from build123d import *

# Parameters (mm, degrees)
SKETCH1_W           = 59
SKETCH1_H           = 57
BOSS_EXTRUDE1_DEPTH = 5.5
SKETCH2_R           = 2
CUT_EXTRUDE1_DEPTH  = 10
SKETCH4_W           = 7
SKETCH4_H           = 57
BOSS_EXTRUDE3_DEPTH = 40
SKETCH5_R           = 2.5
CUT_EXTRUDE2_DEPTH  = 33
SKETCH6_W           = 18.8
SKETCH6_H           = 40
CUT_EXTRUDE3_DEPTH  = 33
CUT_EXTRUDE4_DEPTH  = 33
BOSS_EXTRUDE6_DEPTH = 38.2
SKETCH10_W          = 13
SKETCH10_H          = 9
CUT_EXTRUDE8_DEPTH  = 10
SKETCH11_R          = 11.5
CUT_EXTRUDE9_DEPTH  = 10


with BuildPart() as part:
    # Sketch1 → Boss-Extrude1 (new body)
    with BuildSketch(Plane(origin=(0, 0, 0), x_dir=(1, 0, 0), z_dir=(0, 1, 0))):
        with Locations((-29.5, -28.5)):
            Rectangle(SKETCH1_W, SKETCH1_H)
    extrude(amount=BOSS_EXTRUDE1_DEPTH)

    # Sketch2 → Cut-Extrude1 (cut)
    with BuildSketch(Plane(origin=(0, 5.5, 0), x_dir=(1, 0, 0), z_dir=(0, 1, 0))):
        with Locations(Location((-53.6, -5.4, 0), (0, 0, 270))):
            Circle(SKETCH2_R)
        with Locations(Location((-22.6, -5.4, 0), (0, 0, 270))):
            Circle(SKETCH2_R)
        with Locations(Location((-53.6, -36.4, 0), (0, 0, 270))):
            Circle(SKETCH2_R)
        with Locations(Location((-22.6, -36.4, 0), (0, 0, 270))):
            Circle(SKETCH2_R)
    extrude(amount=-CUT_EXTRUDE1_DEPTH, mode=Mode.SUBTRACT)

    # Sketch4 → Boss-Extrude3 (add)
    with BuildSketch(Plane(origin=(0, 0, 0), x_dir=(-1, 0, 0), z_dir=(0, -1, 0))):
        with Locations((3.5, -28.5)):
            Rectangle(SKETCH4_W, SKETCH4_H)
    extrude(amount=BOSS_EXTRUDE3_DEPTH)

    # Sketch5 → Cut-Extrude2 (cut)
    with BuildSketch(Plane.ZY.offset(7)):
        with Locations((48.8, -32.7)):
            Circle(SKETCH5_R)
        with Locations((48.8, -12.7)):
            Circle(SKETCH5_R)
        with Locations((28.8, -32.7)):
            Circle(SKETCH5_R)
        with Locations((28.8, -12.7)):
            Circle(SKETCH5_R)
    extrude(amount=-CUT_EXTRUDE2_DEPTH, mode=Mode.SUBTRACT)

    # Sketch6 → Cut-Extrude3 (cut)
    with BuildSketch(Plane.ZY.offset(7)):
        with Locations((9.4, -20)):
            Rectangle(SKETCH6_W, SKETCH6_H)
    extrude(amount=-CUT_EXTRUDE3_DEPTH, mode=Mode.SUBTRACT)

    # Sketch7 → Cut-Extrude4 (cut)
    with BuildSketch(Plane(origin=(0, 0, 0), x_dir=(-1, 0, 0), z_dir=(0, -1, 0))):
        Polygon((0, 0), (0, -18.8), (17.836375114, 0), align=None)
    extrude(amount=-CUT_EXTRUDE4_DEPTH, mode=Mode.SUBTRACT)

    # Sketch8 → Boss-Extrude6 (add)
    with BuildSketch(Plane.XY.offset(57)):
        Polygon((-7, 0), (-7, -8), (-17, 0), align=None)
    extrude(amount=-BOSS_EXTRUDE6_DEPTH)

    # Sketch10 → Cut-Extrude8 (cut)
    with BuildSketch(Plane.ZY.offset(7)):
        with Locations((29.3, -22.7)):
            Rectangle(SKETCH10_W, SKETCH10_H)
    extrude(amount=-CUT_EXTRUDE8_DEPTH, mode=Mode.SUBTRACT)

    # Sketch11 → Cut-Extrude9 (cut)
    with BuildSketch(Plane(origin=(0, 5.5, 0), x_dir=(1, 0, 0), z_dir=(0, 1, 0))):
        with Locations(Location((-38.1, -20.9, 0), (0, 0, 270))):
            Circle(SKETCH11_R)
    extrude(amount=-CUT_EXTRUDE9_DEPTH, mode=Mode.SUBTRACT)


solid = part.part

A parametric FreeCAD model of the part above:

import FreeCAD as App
import Part
import Sketcher
from FreeCAD import Vector
Q = App.Units.Quantity

doc = App.newDocument("Part")
body = doc.addObject("PartDesign::Body", "Body")

# Sketch on XZ plane
sketch1 = doc.addObject("Sketcher::SketchObject", "Sketch")
body.addObject(sketch1)
sketch1.AttachmentSupport = (doc.XZ_Plane, [""])
sketch1.MapMode = "FlatFace"
sketch1.addGeometry(Part.LineSegment(Vector(-59, 0, 0), Vector(-59, 57, 0)), False)
sketch1.addGeometry(Part.LineSegment(Vector(-59, 57, 0), Vector(0, 57, 0)), False)
sketch1.addGeometry(Part.LineSegment(Vector(0, 57, 0), Vector(0, 0, 0)), False)
sketch1.addGeometry(Part.LineSegment(Vector(0, 0, 0), Vector(-59, 0, 0)), False)
sketch1.addConstraint(Sketcher.Constraint("Coincident", 0, 2, 1, 1))
sketch1.addConstraint(Sketcher.Constraint("Coincident", 1, 2, 2, 1))
sketch1.addConstraint(Sketcher.Constraint("Coincident", 2, 2, 3, 1))
sketch1.addConstraint(Sketcher.Constraint("Coincident", 3, 2, 0, 1))
sketch1.addConstraint(Sketcher.Constraint("Vertical", 0))
sketch1.addConstraint(Sketcher.Constraint("Horizontal", 1))
sketch1.addConstraint(Sketcher.Constraint("Vertical", 2))
sketch1.addConstraint(Sketcher.Constraint("Horizontal", 3))
sketch1.addConstraint(Sketcher.Constraint("Coincident", 2, 2, -1, 1))
sketch1.addConstraint(Sketcher.Constraint("DistanceX", 1, 1, 1, 2, Q("59 mm")))
sketch1.addConstraint(Sketcher.Constraint("DistanceY", 0, 1, 0, 2, Q("57 mm")))
pad1 = doc.addObject("PartDesign::Pad", "Pad")
body.addObject(pad1)
pad1.Profile = sketch1
pad1.Length = 5.5
pad1.Reversed = True

# Sketch on XZ plane
sketch2 = doc.addObject("Sketcher::SketchObject", "Sketch001")
body.addObject(sketch2)
sketch2.AttachmentSupport = (doc.XZ_Plane, [""])
sketch2.MapMode = "FlatFace"
sketch2.AttachmentOffset = App.Placement(Vector(0, 0, -5.5), App.Rotation())
sketch2.addGeometry(Part.Circle(Vector(-53.6, 5.4, 0), Vector(0, 0, 1), 2), False)
sketch2.addGeometry(Part.Circle(Vector(-22.6, 5.4, 0), Vector(0, 0, 1), 2), False)
sketch2.addGeometry(Part.Circle(Vector(-53.6, 36.4, 0), Vector(0, 0, 1), 2), False)
sketch2.addGeometry(Part.Circle(Vector(-22.6, 36.4, 0), Vector(0, 0, 1), 2), False)
sketch2.addConstraint(Sketcher.Constraint("Equal", 0, 1))
sketch2.addConstraint(Sketcher.Constraint("Equal", 1, 2))
sketch2.addConstraint(Sketcher.Constraint("Equal", 2, 3))
sketch2.addConstraint(Sketcher.Constraint("Horizontal", 0, 3, 1, 3))
sketch2.addConstraint(Sketcher.Constraint("Horizontal", 2, 3, 3, 3))
sketch2.addConstraint(Sketcher.Constraint("Vertical", 0, 3, 2, 3))
sketch2.addConstraint(Sketcher.Constraint("Vertical", 1, 3, 3, 3))
sketch2.addConstraint(Sketcher.Constraint("Diameter", 0, Q("4 mm")))
sketch2.addConstraint(Sketcher.Constraint("DistanceX", 0, 3, 1, 3, Q("31 mm")))
sketch2.addConstraint(Sketcher.Constraint("DistanceY", 0, 3, 2, 3, Q("31 mm")))
sketch2.addConstraint(Sketcher.Constraint("DistanceX", 0, 3, -1, 1, Q("53.6 mm")))
sketch2.addConstraint(Sketcher.Constraint("DistanceY", -1, 1, 0, 3, Q("5.4 mm")))
pocket1 = doc.addObject("PartDesign::Pocket", "Pocket")
body.addObject(pocket1)
pocket1.Profile = sketch2
pocket1.Length = 10
pocket1.Reversed = True

# Sketch on XZ plane
sketch3 = doc.addObject("Sketcher::SketchObject", "Sketch002")
body.addObject(sketch3)
sketch3.AttachmentSupport = (doc.XZ_Plane, [""])
sketch3.MapMode = "FlatFace"
sketch3.addGeometry(Part.LineSegment(Vector(0, 0, 0), Vector(0, 57, 0)), False)
sketch3.addGeometry(Part.LineSegment(Vector(0, 57, 0), Vector(-7, 57, 0)), False)
sketch3.addGeometry(Part.LineSegment(Vector(-7, 57, 0), Vector(-7, 0, 0)), False)
sketch3.addGeometry(Part.LineSegment(Vector(-7, 0, 0), Vector(0, 0, 0)), False)
sketch3.addConstraint(Sketcher.Constraint("Coincident", 0, 2, 1, 1))
sketch3.addConstraint(Sketcher.Constraint("Coincident", 1, 2, 2, 1))
sketch3.addConstraint(Sketcher.Constraint("Coincident", 2, 2, 3, 1))
sketch3.addConstraint(Sketcher.Constraint("Coincident", 3, 2, 0, 1))
sketch3.addConstraint(Sketcher.Constraint("Vertical", 0))
sketch3.addConstraint(Sketcher.Constraint("Horizontal", 1))
sketch3.addConstraint(Sketcher.Constraint("Vertical", 2))
sketch3.addConstraint(Sketcher.Constraint("Horizontal", 3))
sketch3.addConstraint(Sketcher.Constraint("Coincident", 3, 2, -1, 1))
sketch3.addConstraint(Sketcher.Constraint("DistanceX", 1, 2, 1, 1, Q("7 mm")))
sketch3.addConstraint(Sketcher.Constraint("DistanceY", 0, 1, 0, 2, Q("57 mm")))
pad2 = doc.addObject("PartDesign::Pad", "Pad001")
body.addObject(pad2)
pad2.Profile = sketch3
pad2.Length = 40

# Sketch on YZ plane
sketch4 = doc.addObject("Sketcher::SketchObject", "Sketch003")
body.addObject(sketch4)
sketch4.AttachmentSupport = (doc.YZ_Plane, [""])
sketch4.MapMode = "FlatFace"
sketch4.AttachmentOffset = App.Placement(Vector(0, 0, -7), App.Rotation())
sketch4.addGeometry(Part.Circle(Vector(-32.7, 48.8, 0), Vector(0, 0, 1), 2.5), False)
sketch4.addGeometry(Part.Circle(Vector(-12.7, 48.8, 0), Vector(0, 0, 1), 2.5), False)
sketch4.addGeometry(Part.Circle(Vector(-32.7, 28.8, 0), Vector(0, 0, 1), 2.5), False)
sketch4.addGeometry(Part.Circle(Vector(-12.7, 28.8, 0), Vector(0, 0, 1), 2.5), False)
sketch4.addConstraint(Sketcher.Constraint("Equal", 0, 1))
sketch4.addConstraint(Sketcher.Constraint("Equal", 1, 2))
sketch4.addConstraint(Sketcher.Constraint("Equal", 2, 3))
sketch4.addConstraint(Sketcher.Constraint("Horizontal", 0, 3, 1, 3))
sketch4.addConstraint(Sketcher.Constraint("Horizontal", 2, 3, 3, 3))
sketch4.addConstraint(Sketcher.Constraint("Vertical", 0, 3, 2, 3))
sketch4.addConstraint(Sketcher.Constraint("Vertical", 1, 3, 3, 3))
sketch4.addConstraint(Sketcher.Constraint("Diameter", 0, Q("5 mm")))
sketch4.addConstraint(Sketcher.Constraint("DistanceX", 0, 3, 1, 3, Q("20 mm")))
sketch4.addConstraint(Sketcher.Constraint("DistanceY", 2, 3, 0, 3, Q("20 mm")))
sketch4.addConstraint(Sketcher.Constraint("DistanceX", 0, 3, -1, 1, Q("32.7 mm")))
sketch4.addConstraint(Sketcher.Constraint("DistanceY", -1, 1, 0, 3, Q("48.8 mm")))
pocket2 = doc.addObject("PartDesign::Pocket", "Pocket001")
body.addObject(pocket2)
pocket2.Profile = sketch4
pocket2.Length = 33
pocket2.Reversed = True

# Sketch on YZ plane
sketch5 = doc.addObject("Sketcher::SketchObject", "Sketch004")
body.addObject(sketch5)
sketch5.AttachmentSupport = (doc.YZ_Plane, [""])
sketch5.MapMode = "FlatFace"
sketch5.AttachmentOffset = App.Placement(Vector(0, 0, -7), App.Rotation())
sketch5.addGeometry(Part.LineSegment(Vector(0, 0, 0), Vector(-40, 0, 0)), False)
sketch5.addGeometry(Part.LineSegment(Vector(-40, 0, 0), Vector(-40, 18.8, 0)), False)
sketch5.addGeometry(Part.LineSegment(Vector(-40, 18.8, 0), Vector(0, 18.8, 0)), False)
sketch5.addGeometry(Part.LineSegment(Vector(0, 18.8, 0), Vector(0, 0, 0)), False)
sketch5.addConstraint(Sketcher.Constraint("Coincident", 0, 2, 1, 1))
sketch5.addConstraint(Sketcher.Constraint("Coincident", 1, 2, 2, 1))
sketch5.addConstraint(Sketcher.Constraint("Coincident", 2, 2, 3, 1))
sketch5.addConstraint(Sketcher.Constraint("Coincident", 3, 2, 0, 1))
sketch5.addConstraint(Sketcher.Constraint("Horizontal", 0))
sketch5.addConstraint(Sketcher.Constraint("Vertical", 1))
sketch5.addConstraint(Sketcher.Constraint("Horizontal", 2))
sketch5.addConstraint(Sketcher.Constraint("Vertical", 3))
sketch5.addConstraint(Sketcher.Constraint("Coincident", 3, 2, -1, 1))
sketch5.addConstraint(Sketcher.Constraint("DistanceX", 0, 2, 0, 1, Q("40 mm")))
sketch5.addConstraint(Sketcher.Constraint("DistanceY", 1, 1, 1, 2, Q("18.8 mm")))
pocket3 = doc.addObject("PartDesign::Pocket", "Pocket002")
body.addObject(pocket3)
pocket3.Profile = sketch5
pocket3.Length = 33
pocket3.Reversed = True

# Sketch on XZ plane
sketch6 = doc.addObject("Sketcher::SketchObject", "Sketch005")
body.addObject(sketch6)
sketch6.AttachmentSupport = (doc.XZ_Plane, [""])
sketch6.MapMode = "FlatFace"
sketch6.addGeometry(Part.LineSegment(Vector(0, 0, 0), Vector(0, 18.8, 0)), False)
sketch6.addGeometry(Part.LineSegment(Vector(0, 18.8, 0), Vector(-17.836375, 0, 0)), False)
sketch6.addGeometry(Part.LineSegment(Vector(-17.836375, 0, 0), Vector(0, 0, 0)), False)
sketch6.addConstraint(Sketcher.Constraint("Coincident", 0, 2, 1, 1))
sketch6.addConstraint(Sketcher.Constraint("Coincident", 1, 2, 2, 1))
sketch6.addConstraint(Sketcher.Constraint("Coincident", 2, 2, 0, 1))
sketch6.addConstraint(Sketcher.Constraint("Vertical", 0))
sketch6.addConstraint(Sketcher.Constraint("Horizontal", 2))
sketch6.addConstraint(Sketcher.Constraint("Coincident", 2, 2, -1, 1))
sketch6.addConstraint(Sketcher.Constraint("DistanceY", 0, 1, 0, 2, Q("18.8 mm")))
sketch6.addConstraint(Sketcher.Constraint("Distance", 1, Q("25.914789 mm")))
pocket4 = doc.addObject("PartDesign::Pocket", "Pocket003")
body.addObject(pocket4)
pocket4.Profile = sketch6
pocket4.Length = 33

# Sketch on XY plane
sketch7 = doc.addObject("Sketcher::SketchObject", "Sketch006")
body.addObject(sketch7)
sketch7.AttachmentSupport = (doc.XY_Plane, [""])
sketch7.MapMode = "FlatFace"
sketch7.AttachmentOffset = App.Placement(Vector(0, 0, 57), App.Rotation())
sketch7.addGeometry(Part.LineSegment(Vector(-7, -8, 0), Vector(-7, 0, 0)), False)
sketch7.addGeometry(Part.LineSegment(Vector(-7, 0, 0), Vector(-17, 0, 0)), False)
sketch7.addGeometry(Part.LineSegment(Vector(-17, 0, 0), Vector(-7, -8, 0)), False)
sketch7.addConstraint(Sketcher.Constraint("Coincident", 0, 2, 1, 1))
sketch7.addConstraint(Sketcher.Constraint("Coincident", 1, 2, 2, 1))
sketch7.addConstraint(Sketcher.Constraint("Coincident", 2, 2, 0, 1))
sketch7.addConstraint(Sketcher.Constraint("Vertical", 0))
sketch7.addConstraint(Sketcher.Constraint("Horizontal", 1))
sketch7.addConstraint(Sketcher.Constraint("PointOnObject", 0, 2, -1))
sketch7.addConstraint(Sketcher.Constraint("DistanceX", 1, 2, 1, 1, Q("10 mm")))
sketch7.addConstraint(Sketcher.Constraint("DistanceY", 0, 1, 0, 2, Q("8 mm")))
sketch7.addConstraint(Sketcher.Constraint("DistanceX", 0, 2, -1, 1, Q("7 mm")))
pad3 = doc.addObject("PartDesign::Pad", "Pad002")
body.addObject(pad3)
pad3.Profile = sketch7
pad3.Length = 38.2
pad3.Reversed = True

# Sketch on YZ plane
sketch8 = doc.addObject("Sketcher::SketchObject", "Sketch007")
body.addObject(sketch8)
sketch8.AttachmentSupport = (doc.YZ_Plane, [""])
sketch8.MapMode = "FlatFace"
sketch8.AttachmentOffset = App.Placement(Vector(0, 0, -7), App.Rotation())
sketch8.addGeometry(Part.LineSegment(Vector(-18.2, 22.8, 0), Vector(-27.2, 22.8, 0)), False)
sketch8.addGeometry(Part.LineSegment(Vector(-27.2, 22.8, 0), Vector(-27.2, 35.8, 0)), False)
sketch8.addGeometry(Part.LineSegment(Vector(-27.2, 35.8, 0), Vector(-18.2, 35.8, 0)), False)
sketch8.addGeometry(Part.LineSegment(Vector(-18.2, 35.8, 0), Vector(-18.2, 22.8, 0)), False)
sketch8.addConstraint(Sketcher.Constraint("Coincident", 0, 2, 1, 1))
sketch8.addConstraint(Sketcher.Constraint("Coincident", 1, 2, 2, 1))
sketch8.addConstraint(Sketcher.Constraint("Coincident", 2, 2, 3, 1))
sketch8.addConstraint(Sketcher.Constraint("Coincident", 3, 2, 0, 1))
sketch8.addConstraint(Sketcher.Constraint("Horizontal", 0))
sketch8.addConstraint(Sketcher.Constraint("Vertical", 1))
sketch8.addConstraint(Sketcher.Constraint("Horizontal", 2))
sketch8.addConstraint(Sketcher.Constraint("Vertical", 3))
sketch8.addConstraint(Sketcher.Constraint("DistanceX", 0, 2, 0, 1, Q("9 mm")))
sketch8.addConstraint(Sketcher.Constraint("DistanceY", 1, 1, 1, 2, Q("13 mm")))
sketch8.addConstraint(Sketcher.Constraint("DistanceX", 0, 2, -1, 1, Q("27.2 mm")))
sketch8.addConstraint(Sketcher.Constraint("DistanceY", -1, 1, 0, 2, Q("22.8 mm")))
pocket5 = doc.addObject("PartDesign::Pocket", "Pocket004")
body.addObject(pocket5)
pocket5.Profile = sketch8
pocket5.Length = 10
pocket5.Reversed = True

# Sketch on XZ plane
sketch9 = doc.addObject("Sketcher::SketchObject", "Sketch008")
body.addObject(sketch9)
sketch9.AttachmentSupport = (doc.XZ_Plane, [""])
sketch9.MapMode = "FlatFace"
sketch9.AttachmentOffset = App.Placement(Vector(0, 0, -5.5), App.Rotation())
sketch9.addGeometry(Part.Circle(Vector(-38.1, 20.9, 0), Vector(0, 0, 1), 11.5), False)
sketch9.addConstraint(Sketcher.Constraint("Diameter", 0, Q("23 mm")))
sketch9.addConstraint(Sketcher.Constraint("DistanceX", 0, 3, -1, 1, Q("38.1 mm")))
sketch9.addConstraint(Sketcher.Constraint("DistanceY", -1, 1, 0, 3, Q("20.9 mm")))
pocket6 = doc.addObject("PartDesign::Pocket", "Pocket005")
body.addObject(pocket6)
pocket6.Profile = sketch9
pocket6.Length = 10
pocket6.Reversed = True

doc.recompute()
